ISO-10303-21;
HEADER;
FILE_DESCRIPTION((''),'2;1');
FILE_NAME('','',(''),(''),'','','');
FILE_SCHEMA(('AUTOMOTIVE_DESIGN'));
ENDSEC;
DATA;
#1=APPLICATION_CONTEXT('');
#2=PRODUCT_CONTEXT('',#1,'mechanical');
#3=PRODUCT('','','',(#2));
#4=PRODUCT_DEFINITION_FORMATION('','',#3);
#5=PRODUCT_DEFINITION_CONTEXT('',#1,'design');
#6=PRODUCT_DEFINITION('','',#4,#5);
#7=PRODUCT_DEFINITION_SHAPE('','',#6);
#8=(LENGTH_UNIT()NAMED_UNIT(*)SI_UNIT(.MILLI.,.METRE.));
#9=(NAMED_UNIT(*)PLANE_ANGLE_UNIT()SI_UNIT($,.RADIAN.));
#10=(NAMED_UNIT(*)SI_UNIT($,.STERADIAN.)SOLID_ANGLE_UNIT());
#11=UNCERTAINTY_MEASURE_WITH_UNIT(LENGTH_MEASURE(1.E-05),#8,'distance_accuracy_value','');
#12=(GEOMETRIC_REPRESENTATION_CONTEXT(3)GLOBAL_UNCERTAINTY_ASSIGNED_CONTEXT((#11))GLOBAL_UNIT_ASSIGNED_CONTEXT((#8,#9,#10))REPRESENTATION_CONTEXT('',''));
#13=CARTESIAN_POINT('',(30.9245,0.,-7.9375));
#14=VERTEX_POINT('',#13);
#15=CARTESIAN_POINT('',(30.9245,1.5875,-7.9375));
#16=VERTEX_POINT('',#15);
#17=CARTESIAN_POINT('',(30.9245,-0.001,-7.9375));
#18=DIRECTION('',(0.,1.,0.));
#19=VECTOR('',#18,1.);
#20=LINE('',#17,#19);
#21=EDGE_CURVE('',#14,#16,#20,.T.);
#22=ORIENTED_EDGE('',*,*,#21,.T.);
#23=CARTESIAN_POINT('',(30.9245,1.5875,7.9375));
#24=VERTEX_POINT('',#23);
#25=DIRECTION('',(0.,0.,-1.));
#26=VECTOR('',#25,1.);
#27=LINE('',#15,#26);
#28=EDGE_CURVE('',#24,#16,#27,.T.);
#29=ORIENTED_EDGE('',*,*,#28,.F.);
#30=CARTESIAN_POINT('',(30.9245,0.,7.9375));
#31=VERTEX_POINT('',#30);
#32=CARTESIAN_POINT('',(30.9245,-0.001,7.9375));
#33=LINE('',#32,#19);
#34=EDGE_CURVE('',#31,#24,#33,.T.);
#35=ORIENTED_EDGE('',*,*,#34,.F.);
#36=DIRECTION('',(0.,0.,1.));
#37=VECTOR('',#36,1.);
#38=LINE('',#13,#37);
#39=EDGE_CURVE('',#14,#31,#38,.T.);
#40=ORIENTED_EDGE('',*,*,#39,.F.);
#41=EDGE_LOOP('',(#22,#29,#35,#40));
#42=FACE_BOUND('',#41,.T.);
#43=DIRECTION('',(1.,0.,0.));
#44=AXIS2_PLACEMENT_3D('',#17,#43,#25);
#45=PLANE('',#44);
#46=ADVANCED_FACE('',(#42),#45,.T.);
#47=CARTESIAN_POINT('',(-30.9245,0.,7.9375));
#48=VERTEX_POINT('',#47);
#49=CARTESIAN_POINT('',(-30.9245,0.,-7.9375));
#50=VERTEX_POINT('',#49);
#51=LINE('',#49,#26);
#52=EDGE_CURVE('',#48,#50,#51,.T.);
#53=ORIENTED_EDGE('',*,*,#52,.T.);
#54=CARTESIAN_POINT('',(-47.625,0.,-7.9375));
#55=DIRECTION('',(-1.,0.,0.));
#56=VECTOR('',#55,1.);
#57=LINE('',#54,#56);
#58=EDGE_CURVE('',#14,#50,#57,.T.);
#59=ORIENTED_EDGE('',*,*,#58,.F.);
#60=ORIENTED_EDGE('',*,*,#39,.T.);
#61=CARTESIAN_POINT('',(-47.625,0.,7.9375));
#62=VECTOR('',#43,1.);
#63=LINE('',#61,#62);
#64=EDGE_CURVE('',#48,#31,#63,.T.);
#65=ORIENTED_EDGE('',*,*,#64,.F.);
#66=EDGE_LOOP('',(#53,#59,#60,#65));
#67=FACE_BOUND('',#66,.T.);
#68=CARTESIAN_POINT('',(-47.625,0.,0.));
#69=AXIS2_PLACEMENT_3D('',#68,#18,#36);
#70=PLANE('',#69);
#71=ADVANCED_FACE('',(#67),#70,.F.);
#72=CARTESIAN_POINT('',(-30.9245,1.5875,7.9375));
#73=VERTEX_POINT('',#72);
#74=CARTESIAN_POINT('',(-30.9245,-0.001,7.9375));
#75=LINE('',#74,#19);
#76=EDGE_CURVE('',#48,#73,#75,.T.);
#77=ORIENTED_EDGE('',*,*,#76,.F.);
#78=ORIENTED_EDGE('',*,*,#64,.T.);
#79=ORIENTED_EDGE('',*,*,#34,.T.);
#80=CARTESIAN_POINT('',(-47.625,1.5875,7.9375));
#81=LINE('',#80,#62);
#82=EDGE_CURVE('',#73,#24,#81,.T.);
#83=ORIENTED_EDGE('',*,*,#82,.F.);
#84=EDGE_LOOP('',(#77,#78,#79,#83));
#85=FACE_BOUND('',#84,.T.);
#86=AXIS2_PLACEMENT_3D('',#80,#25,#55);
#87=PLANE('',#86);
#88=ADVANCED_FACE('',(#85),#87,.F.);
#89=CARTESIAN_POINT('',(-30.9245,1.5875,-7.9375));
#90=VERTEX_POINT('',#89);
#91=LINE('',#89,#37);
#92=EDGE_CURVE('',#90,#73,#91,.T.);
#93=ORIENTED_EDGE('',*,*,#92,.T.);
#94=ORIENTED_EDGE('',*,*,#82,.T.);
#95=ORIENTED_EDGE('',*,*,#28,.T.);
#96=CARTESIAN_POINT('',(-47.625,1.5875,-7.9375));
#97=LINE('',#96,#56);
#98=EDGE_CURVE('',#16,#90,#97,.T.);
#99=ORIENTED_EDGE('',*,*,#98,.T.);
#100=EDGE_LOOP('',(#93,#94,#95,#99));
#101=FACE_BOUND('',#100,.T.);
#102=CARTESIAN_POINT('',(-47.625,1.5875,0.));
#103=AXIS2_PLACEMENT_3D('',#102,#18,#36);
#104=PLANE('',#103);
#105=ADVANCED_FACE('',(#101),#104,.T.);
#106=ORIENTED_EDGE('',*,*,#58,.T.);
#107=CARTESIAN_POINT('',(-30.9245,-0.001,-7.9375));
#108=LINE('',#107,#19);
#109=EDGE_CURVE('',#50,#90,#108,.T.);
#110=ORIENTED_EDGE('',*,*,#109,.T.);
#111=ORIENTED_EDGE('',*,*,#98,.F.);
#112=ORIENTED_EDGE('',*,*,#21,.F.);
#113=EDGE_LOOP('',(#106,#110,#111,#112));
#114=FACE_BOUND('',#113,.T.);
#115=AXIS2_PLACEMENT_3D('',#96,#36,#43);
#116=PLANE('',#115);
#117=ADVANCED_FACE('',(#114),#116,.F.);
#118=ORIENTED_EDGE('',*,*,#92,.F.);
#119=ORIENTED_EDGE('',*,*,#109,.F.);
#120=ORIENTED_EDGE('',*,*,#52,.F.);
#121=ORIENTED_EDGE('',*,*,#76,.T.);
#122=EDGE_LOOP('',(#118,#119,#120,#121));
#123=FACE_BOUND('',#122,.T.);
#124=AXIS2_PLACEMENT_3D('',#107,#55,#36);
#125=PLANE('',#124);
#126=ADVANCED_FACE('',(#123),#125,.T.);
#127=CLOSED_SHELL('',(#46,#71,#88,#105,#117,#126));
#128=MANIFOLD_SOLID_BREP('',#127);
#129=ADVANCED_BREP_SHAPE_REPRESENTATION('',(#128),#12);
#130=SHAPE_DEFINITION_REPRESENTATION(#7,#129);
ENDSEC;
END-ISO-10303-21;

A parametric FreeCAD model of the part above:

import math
import FreeCAD as App
import Part
import Sketcher
from FreeCAD import Vector
Q = App.Units.Quantity


def add_polygon(sketch, points):
    """Adds a closed chain of lines whose ends are joined by coincident constraints."""
    first, n = sketch.GeometryCount, len(points)
    for a, b in zip(points, points[1:] + points[:1]):
        sketch.addGeometry(Part.LineSegment(App.Vector(*a, 0), App.Vector(*b, 0)), False)
    for i in range(n):
        sketch.addConstraint(Sketcher.Constraint("Coincident", first + i, 2, first + (i + 1) % n, 1))

doc = App.newDocument("Part")
body = doc.addObject("PartDesign::Body", "Body")

# Sketch on XZ plane
sketch1 = body.newObject("Sketcher::SketchObject", "Sketch")
sketch1.AttachmentSupport = (doc.getObject("XZ_Plane"), [""])
sketch1.MapMode = "FlatFace"
sketch1.addGeometry(Part.LineSegment(Vector(48, -8, 0), Vector(-48, -8, 0)), False)
sketch1.addGeometry(Part.ArcOfCircle(Part.Circle(Vector(-48, 0, 0), Vector(0, 0, 1), 8), math.radians(90), math.radians(270)), False)
sketch1.addGeometry(Part.LineSegment(Vector(-48, 8, 0), Vector(48, 8, 0)), False)
sketch1.addGeometry(Part.ArcOfCircle(Part.Circle(Vector(48, 0, 0), Vector(0, 0, 1), 8), math.radians(-90), math.radians(90)), False)
sketch1.addConstraint(Sketcher.Constraint("Tangent", 0, 2, 1, 2))
sketch1.addConstraint(Sketcher.Constraint("Tangent", 1, 1, 2, 1))
sketch1.addConstraint(Sketcher.Constraint("Tangent", 2, 2, 3, 2))
sketch1.addConstraint(Sketcher.Constraint("Tangent", 3, 1, 0, 1))
sketch1.addConstraint(Sketcher.Constraint("Horizontal", 0))
sketch1.addConstraint(Sketcher.Constraint("Horizontal", 2))
sketch1.addConstraint(Sketcher.Constraint("Symmetric", 1, 3, 3, 3, -1, 1))
sketch1.addConstraint(Sketcher.Constraint("Radius", 1, Q("0.3125 in")))
sketch1.addConstraint(Sketcher.Constraint("DistanceX", 0, 2, 0, 1, Q("3.75 in")))
pad1 = body.newObject("PartDesign::Pad", "Pad")
pad1.Profile = sketch1
pad1.Length = Q("0.0625 in")
pad1.Reversed = True

# Sketch on XZ plane
sketch2 = body.newObject("Sketcher::SketchObject", "Sketch001")
sketch2.AttachmentSupport = (doc.getObject("XZ_Plane"), [""])
sketch2.MapMode = "FlatFace"
add_polygon(sketch2, [(-71, -21), (-71, 19), (74, 19), (74, -21)])  # lines 0-3
add_polygon(sketch2, [(31, 8), (-31, 8), (-31, -8), (31, -8)])  # lines 4-7
sketch2.addConstraint(Sketcher.Constraint("Vertical", 0))
sketch2.addConstraint(Sketcher.Constraint("Horizontal", 1))
sketch2.addConstraint(Sketcher.Constraint("Vertical", 2))
sketch2.addConstraint(Sketcher.Constraint("Horizontal", 3))
sketch2.addConstraint(Sketcher.Constraint("Horizontal", 4))
sketch2.addConstraint(Sketcher.Constraint("Vertical", 5))
sketch2.addConstraint(Sketcher.Constraint("Horizontal", 6))
sketch2.addConstraint(Sketcher.Constraint("Vertical", 7))
sketch2.addConstraint(Sketcher.Constraint("Symmetric", 4, 2, 6, 2, -1, 1))
sketch2.addConstraint(Sketcher.Constraint("DistanceX", 4, 2, 4, 1, Q("2.435 in")))
sketch2.addConstraint(Sketcher.Constraint("DistanceY", 5, 2, 5, 1, Q("0.625 in")))
sketch2.addConstraint(Sketcher.Constraint("DistanceX", 1, 1, 1, 2, Q("145.552464 mm")))
sketch2.addConstraint(Sketcher.Constraint("DistanceY", 0, 1, 0, 2, Q("40.152404 mm")))
sketch2.addConstraint(Sketcher.Constraint("DistanceX", 0, 2, -1, 1, Q("71.424949 mm")))
sketch2.addConstraint(Sketcher.Constraint("DistanceY", 2, 2, -1, 1, Q("20.91271 mm")))
pocket1 = body.newObject("PartDesign::Pocket", "Pocket")
pocket1.Profile = sketch2
pocket1.Length = Q("0.0625 in")

doc.recompute()
